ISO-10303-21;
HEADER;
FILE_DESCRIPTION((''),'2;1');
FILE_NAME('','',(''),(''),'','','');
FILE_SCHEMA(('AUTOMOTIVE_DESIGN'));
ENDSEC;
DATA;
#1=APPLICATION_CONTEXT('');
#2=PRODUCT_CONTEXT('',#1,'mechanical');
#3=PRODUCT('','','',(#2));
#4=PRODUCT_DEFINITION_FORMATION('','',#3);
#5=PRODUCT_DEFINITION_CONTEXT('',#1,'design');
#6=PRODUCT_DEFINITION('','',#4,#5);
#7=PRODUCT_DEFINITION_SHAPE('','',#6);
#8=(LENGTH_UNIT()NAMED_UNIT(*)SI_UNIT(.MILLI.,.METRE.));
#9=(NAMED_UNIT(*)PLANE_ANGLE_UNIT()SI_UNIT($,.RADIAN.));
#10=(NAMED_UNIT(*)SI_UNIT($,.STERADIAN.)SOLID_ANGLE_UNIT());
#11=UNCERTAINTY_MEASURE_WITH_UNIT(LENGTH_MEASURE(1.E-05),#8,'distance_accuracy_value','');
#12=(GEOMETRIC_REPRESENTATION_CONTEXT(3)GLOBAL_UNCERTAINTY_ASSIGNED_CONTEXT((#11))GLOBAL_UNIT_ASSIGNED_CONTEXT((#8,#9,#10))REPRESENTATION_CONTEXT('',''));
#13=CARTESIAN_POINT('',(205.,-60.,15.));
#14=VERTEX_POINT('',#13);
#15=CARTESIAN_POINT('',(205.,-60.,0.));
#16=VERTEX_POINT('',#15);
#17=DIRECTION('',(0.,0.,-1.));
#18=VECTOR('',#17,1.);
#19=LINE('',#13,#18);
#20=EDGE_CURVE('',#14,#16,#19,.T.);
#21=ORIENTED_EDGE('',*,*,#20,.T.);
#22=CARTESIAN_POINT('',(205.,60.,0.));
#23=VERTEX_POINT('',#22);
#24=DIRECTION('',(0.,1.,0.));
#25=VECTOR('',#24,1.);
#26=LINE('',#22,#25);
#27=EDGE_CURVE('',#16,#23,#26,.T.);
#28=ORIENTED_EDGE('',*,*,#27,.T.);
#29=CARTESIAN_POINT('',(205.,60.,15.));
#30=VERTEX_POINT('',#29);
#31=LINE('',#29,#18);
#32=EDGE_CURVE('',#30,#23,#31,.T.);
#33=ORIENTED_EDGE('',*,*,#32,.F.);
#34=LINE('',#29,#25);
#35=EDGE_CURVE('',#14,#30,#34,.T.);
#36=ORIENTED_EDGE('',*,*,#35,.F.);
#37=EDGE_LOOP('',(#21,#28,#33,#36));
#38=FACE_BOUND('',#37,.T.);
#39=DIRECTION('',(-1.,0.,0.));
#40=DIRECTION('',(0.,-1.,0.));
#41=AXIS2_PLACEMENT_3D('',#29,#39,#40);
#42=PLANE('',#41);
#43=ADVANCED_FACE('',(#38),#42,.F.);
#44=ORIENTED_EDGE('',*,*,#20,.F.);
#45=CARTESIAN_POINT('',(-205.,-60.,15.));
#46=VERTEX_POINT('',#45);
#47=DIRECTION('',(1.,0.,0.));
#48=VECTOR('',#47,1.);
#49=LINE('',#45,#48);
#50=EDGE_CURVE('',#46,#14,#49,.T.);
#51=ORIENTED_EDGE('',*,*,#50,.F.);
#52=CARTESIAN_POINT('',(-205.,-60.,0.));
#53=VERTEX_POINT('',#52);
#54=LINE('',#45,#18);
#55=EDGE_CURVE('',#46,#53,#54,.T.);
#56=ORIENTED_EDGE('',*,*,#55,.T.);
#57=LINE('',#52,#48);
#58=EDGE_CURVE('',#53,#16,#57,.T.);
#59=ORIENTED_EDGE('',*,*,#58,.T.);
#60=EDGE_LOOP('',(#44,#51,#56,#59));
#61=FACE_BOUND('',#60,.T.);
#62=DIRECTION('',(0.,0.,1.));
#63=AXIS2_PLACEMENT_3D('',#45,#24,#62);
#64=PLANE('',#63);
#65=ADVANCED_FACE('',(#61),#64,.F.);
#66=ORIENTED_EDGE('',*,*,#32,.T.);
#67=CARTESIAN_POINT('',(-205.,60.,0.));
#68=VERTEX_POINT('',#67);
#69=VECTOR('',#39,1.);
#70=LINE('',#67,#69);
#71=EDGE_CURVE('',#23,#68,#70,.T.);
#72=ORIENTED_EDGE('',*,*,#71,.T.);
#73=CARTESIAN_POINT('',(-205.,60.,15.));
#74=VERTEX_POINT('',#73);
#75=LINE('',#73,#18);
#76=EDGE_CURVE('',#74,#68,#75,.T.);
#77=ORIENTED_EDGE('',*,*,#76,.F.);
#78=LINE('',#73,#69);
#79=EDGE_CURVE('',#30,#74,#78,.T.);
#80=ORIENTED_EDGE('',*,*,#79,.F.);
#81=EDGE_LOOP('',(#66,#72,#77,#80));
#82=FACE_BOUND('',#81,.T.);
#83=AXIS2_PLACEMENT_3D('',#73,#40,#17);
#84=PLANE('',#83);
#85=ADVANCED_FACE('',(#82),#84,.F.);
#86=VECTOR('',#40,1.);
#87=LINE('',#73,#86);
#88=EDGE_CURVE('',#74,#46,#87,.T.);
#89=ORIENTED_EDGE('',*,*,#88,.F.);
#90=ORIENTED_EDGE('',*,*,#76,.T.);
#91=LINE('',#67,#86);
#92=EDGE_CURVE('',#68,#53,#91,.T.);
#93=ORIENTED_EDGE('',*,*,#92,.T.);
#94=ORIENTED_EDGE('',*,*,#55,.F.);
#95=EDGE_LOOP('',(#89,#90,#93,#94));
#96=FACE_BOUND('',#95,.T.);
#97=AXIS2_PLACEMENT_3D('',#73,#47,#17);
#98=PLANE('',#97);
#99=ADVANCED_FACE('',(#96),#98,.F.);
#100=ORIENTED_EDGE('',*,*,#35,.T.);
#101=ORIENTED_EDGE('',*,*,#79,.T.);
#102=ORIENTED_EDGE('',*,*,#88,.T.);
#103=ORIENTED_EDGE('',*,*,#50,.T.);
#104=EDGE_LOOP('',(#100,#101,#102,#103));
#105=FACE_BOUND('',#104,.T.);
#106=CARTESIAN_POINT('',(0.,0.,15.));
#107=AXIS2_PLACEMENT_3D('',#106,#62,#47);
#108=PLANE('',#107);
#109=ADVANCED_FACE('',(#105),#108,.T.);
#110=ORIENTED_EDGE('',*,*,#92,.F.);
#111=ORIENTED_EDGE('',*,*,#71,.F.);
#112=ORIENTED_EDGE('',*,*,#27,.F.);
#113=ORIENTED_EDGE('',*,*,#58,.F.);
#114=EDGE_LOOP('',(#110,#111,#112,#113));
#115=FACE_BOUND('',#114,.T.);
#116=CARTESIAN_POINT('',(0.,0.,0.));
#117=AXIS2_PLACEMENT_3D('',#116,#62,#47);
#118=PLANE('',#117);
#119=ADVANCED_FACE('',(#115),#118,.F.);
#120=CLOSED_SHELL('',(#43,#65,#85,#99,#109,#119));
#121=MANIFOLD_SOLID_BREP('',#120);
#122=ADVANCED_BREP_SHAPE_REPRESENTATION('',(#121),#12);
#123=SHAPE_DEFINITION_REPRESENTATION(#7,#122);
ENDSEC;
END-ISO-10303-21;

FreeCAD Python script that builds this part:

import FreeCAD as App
import Part
import Sketcher
from FreeCAD import Vector
Q = App.Units.Quantity


def add_polygon(sketch, points):
    """Adds a closed chain of lines whose ends are joined by coincident constraints."""
    first, n = sketch.GeometryCount, len(points)
    for a, b in zip(points, points[1:] + points[:1]):
        sketch.addGeometry(Part.LineSegment(App.Vector(*a, 0), App.Vector(*b, 0)), False)
    for i in range(n):
        sketch.addConstraint(Sketcher.Constraint("Coincident", first + i, 2, first + (i + 1) % n, 1))

doc = App.newDocument("Part")
body = doc.addObject("PartDesign::Body", "Body")

sketch1 = doc.addObject("Sketcher::SketchObject", "Sketch")
body.addObject(sketch1)
sketch1.AttachmentSupport = (doc.XY_Plane, [""])
sketch1.MapMode = "FlatFace"
add_polygon(sketch1, [(-205, 60), (-205, -60), (205, -60), (205, 60)])
sketch1.addConstraint(Sketcher.Constraint("Vertical", 0))
sketch1.addConstraint(Sketcher.Constraint("Horizontal", 1))
sketch1.addConstraint(Sketcher.Constraint("Vertical", 2))
sketch1.addConstraint(Sketcher.Constraint("Horizontal", 3))
sketch1.addConstraint(Sketcher.Constraint("Symmetric", 0, 2, 2, 2, -1, 1))
sketch1.addConstraint(Sketcher.Constraint("DistanceX", 1, 1, 1, 2, Q("410 mm")))
sketch1.addConstraint(Sketcher.Constraint("DistanceY", 0, 2, 0, 1, Q("120 mm")))
pad1 = doc.addObject("PartDesign::Pad", "Pad")
body.addObject(pad1)
pad1.Profile = sketch1
pad1.Length = 15

doc.recompute()
